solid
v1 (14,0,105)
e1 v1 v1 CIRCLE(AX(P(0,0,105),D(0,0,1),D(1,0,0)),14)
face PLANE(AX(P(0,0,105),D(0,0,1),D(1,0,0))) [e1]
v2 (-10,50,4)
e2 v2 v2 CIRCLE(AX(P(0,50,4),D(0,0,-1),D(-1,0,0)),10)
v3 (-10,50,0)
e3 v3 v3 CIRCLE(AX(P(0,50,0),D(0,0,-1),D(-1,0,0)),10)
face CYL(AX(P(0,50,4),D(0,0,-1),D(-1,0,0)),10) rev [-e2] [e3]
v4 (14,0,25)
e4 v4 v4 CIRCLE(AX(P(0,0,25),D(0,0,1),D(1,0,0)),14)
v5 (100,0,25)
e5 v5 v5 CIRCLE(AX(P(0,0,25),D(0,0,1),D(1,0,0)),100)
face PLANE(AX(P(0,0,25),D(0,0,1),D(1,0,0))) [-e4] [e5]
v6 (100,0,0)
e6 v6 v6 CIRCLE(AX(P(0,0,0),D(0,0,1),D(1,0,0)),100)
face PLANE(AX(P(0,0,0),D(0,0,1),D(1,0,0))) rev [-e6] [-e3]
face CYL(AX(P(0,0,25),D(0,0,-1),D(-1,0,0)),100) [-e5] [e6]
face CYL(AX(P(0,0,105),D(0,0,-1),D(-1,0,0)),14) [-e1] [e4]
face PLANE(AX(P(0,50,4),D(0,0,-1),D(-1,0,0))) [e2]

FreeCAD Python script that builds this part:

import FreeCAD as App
import Part
import Sketcher

V = App.Vector

doc = App.newDocument("Part")
body = doc.addObject("PartDesign::Body", "Body")

sketch1 = body.newObject("Sketcher::SketchObject", "Sketch")
sketch1.AttachmentSupport = (doc.getObject("XY_Plane"), [""])
sketch1.MapMode = "FlatFace"
sketch1.addGeometry(Part.Circle(V(0, 0, 0), V(0, 0, 1), 100), False)
sketch1.addConstraint([
    Sketcher.Constraint("Coincident", 0, 3, -1, 1),
    Sketcher.Constraint("Diameter", 0, 200.0),
])
pad1 = body.newObject("PartDesign::Pad", "Pad")
pad1.Profile = sketch1
pad1.Length = 25

sketch2 = body.newObject("Sketcher::SketchObject", "Sketch001")
sketch2.AttachmentSupport = (doc.getObject("XY_Plane"), [""])
sketch2.MapMode = "FlatFace"
sketch2.AttachmentOffset = App.Placement(V(0, 0, 25), App.Rotation())
sketch2.addGeometry(Part.Circle(V(0, 0, 0), V(0, 0, 1), 14), False)
sketch2.addConstraint([
    Sketcher.Constraint("Coincident", 0, 3, -1, 1),
    Sketcher.Constraint("Diameter", 0, 28.0),
])
pad2 = body.newObject("PartDesign::Pad", "Pad001")
pad2.Profile = sketch2
pad2.Length = 80

sketch3 = body.newObject("Sketcher::SketchObject", "Sketch002")
sketch3.AttachmentSupport = (doc.getObject("XY_Plane"), [""])
sketch3.MapMode = "FlatFace"
sketch3.addGeometry(Part.Circle(V(0, 50, 0), V(0, 0, 1), 10), False)
sketch3.addConstraint([
    Sketcher.Constraint("PointOnObject", 0, 3, -2),
    Sketcher.Constraint("Diameter", 0, 20.0),
    Sketcher.Constraint("DistanceY", -1, 1, 0, 3, 50.0),
])
pocket1 = body.newObject("PartDesign::Pocket", "Pocket")
pocket1.Profile = sketch3
pocket1.Length = 4
pocket1.Reversed = True

doc.recompute()
